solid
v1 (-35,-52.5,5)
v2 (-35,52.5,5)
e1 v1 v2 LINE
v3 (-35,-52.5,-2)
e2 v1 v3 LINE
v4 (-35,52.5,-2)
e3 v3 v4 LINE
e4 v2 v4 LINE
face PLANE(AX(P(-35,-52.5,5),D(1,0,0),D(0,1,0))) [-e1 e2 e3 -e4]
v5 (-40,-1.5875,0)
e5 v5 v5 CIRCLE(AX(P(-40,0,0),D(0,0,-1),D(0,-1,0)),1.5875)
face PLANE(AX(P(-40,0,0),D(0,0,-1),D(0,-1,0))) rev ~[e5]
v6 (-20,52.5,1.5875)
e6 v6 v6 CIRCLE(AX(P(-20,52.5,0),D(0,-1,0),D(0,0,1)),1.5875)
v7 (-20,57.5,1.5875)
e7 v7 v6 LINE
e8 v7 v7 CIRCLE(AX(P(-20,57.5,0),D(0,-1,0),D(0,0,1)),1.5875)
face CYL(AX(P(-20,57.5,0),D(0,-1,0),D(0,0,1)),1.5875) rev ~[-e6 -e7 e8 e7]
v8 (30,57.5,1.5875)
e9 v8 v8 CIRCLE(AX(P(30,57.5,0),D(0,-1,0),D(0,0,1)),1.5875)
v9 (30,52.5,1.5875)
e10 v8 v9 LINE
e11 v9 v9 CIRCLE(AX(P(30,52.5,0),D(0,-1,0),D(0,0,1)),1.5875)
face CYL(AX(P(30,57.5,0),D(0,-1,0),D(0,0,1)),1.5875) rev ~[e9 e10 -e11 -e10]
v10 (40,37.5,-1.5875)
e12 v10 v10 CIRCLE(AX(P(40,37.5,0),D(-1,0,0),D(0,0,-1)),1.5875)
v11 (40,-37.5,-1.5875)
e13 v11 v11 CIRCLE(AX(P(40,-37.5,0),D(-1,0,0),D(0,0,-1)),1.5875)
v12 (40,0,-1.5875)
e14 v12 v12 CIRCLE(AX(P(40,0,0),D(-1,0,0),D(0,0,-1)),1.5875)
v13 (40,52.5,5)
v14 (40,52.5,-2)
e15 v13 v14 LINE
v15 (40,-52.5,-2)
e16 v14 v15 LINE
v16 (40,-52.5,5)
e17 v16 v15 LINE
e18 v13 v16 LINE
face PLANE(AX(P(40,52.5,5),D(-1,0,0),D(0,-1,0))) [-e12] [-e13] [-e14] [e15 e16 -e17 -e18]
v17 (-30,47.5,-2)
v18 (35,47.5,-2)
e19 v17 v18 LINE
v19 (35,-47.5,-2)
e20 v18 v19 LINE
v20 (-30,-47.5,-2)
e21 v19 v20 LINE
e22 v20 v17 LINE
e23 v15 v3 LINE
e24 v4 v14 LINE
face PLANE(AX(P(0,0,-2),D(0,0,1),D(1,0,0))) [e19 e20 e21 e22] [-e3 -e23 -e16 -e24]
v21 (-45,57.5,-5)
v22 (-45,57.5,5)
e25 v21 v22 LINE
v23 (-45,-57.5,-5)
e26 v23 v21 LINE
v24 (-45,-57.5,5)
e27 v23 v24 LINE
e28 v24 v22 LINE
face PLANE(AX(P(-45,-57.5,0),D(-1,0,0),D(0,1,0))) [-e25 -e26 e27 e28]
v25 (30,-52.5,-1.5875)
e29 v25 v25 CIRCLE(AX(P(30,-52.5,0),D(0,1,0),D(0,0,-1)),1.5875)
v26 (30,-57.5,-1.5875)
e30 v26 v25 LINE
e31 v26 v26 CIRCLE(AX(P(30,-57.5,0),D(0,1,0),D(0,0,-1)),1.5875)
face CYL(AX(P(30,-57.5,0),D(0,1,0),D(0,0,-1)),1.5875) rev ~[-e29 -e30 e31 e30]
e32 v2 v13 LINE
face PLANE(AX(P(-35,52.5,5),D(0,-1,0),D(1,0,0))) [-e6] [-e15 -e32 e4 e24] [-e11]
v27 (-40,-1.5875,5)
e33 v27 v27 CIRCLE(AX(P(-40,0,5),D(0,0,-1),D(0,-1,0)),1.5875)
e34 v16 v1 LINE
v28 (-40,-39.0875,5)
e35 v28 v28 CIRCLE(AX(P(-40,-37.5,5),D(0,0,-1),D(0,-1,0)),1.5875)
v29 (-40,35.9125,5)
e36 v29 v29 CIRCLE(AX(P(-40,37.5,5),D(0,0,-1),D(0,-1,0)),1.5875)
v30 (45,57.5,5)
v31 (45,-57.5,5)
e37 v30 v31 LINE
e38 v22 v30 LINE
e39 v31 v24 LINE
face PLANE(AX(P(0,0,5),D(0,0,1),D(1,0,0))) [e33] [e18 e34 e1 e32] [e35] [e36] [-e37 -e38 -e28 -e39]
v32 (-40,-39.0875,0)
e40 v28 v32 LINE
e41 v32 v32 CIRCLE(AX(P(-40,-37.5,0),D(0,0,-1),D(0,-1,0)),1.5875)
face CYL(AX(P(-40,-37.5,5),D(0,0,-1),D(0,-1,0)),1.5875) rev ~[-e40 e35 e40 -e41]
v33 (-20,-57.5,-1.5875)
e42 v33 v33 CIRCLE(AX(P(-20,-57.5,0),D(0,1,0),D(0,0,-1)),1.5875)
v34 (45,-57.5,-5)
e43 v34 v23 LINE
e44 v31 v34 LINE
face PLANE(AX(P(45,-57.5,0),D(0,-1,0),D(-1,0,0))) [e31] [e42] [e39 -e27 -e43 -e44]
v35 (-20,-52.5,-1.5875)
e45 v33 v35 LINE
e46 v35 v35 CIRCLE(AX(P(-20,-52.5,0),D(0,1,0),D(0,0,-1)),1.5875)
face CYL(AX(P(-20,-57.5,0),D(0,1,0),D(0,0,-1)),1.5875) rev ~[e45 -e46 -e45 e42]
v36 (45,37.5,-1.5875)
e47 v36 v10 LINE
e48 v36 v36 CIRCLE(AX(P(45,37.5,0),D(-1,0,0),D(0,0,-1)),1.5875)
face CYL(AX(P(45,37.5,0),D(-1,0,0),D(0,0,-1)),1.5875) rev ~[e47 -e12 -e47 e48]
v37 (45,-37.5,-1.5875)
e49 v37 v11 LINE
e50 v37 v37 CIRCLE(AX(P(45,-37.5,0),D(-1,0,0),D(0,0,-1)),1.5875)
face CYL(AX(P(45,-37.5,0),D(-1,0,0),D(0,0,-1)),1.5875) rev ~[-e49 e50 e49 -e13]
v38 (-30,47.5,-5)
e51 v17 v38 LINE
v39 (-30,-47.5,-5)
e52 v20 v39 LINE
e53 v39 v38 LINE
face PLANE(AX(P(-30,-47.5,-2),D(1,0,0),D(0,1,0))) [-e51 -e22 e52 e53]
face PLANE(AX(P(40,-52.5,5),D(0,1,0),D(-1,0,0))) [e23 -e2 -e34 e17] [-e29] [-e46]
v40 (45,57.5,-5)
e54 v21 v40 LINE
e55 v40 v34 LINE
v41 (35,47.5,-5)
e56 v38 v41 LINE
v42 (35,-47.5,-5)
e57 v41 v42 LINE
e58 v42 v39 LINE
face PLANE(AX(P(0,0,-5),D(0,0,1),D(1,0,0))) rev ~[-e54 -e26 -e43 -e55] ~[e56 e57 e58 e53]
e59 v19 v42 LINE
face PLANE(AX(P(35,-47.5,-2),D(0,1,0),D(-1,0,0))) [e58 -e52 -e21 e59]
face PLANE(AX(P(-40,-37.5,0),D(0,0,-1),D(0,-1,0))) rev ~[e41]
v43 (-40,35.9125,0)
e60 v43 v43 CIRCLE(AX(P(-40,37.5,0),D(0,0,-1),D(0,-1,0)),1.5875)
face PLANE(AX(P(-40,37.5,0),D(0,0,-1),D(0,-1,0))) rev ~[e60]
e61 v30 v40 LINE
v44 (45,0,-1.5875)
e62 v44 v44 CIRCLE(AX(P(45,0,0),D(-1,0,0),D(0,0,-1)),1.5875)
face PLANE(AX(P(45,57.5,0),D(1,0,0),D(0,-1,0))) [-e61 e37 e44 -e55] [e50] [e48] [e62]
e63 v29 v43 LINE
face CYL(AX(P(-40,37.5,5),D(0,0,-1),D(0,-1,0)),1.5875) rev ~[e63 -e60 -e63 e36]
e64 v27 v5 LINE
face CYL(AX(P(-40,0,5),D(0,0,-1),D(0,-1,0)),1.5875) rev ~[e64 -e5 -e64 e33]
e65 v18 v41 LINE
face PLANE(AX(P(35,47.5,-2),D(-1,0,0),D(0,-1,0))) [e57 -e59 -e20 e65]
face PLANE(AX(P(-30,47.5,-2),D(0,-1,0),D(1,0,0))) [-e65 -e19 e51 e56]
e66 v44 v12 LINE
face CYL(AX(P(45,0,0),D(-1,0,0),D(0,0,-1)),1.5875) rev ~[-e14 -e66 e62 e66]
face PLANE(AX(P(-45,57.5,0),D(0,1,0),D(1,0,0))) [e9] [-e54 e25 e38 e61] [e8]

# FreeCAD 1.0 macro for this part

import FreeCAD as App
import Part
import Sketcher

V = App.Vector
Q = App.Units.Quantity


def add_polygon(sketch, points):
    """Adds a closed chain of lines whose ends are joined by coincident constraints."""
    first, n = sketch.GeometryCount, len(points)
    for a, b in zip(points, points[1:] + points[:1]):
        sketch.addGeometry(Part.LineSegment(App.Vector(*a, 0), App.Vector(*b, 0)), False)
    for i in range(n):
        sketch.addConstraint(Sketcher.Constraint("Coincident", first + i, 2, first + (i + 1) % n, 1))

doc = App.newDocument("Part")
body = doc.addObject("PartDesign::Body", "Body")

# Sketch on XY plane
sketch1 = body.newObject("Sketcher::SketchObject", "Sketch")
sketch1.AttachmentSupport = (doc.getObject("XY_Plane"), [""])
sketch1.MapMode = "FlatFace"
add_polygon(sketch1, [(45, 58), (-45, 58), (-45, -58), (45, -58)])  # lines 0-3
sketch1.addConstraint(Sketcher.Constraint("Horizontal", 0))
sketch1.addConstraint(Sketcher.Constraint("Vertical", 1))
sketch1.addConstraint(Sketcher.Constraint("Horizontal", 2))
sketch1.addConstraint(Sketcher.Constraint("Vertical", 3))
sketch1.addConstraint(Sketcher.Constraint("Symmetric", 0, 2, 2, 2, -1, 1))
sketch1.addConstraint(Sketcher.Constraint("DistanceX", 0, 2, 0, 1, Q("90 mm")))
sketch1.addConstraint(Sketcher.Constraint("DistanceY", 1, 2, 1, 1, Q("115 mm")))
pad1 = body.newObject("PartDesign::Pad", "Pad")
pad1.Profile = sketch1
pad1.Length = 10
pad1.Midplane = True

# Sketch on YZ plane
sketch2 = body.newObject("Sketcher::SketchObject", "Sketch001")
sketch2.AttachmentSupport = (doc.getObject("YZ_Plane"), [""])
sketch2.MapMode = "FlatFace"
sketch2.AttachmentOffset = App.Placement(V(0, 0, 45), App.Rotation())
sketch2.addGeometry(Part.Circle(V(-37.5, 0, 0), V(0, 0, 1), 1.6), False)
sketch2.addGeometry(Part.Circle(V(0, 0, 0), V(0, 0, 1), 1.6), False)
sketch2.addGeometry(Part.Circle(V(37.5, 0, 0), V(0, 0, 1), 1.6), False)
sketch2.addConstraint(Sketcher.Constraint("Coincident", 1, 3, -1, 1))
sketch2.addConstraint(Sketcher.Constraint("Equal", 0, 1))
sketch2.addConstraint(Sketcher.Constraint("Equal", 1, 2))
sketch2.addConstraint(Sketcher.Constraint("Symmetric", 0, 3, 2, 3, -1, 1))
sketch2.addConstraint(Sketcher.Constraint("PointOnObject", 0, 3, -1))
sketch2.addConstraint(Sketcher.Constraint("Diameter", 0, Q("3.175 mm")))
sketch2.addConstraint(Sketcher.Constraint("DistanceX", 0, 3, 2, 3, Q("75 mm")))
doc.recompute()
hole = body.newObject("PartDesign::Hole", "Hole")
hole.Profile = sketch2
hole.ThreadType = "None"
hole.Diameter = 3.175
hole.DepthType = "Dimension"
hole.Depth = 5
hole.DrillPoint = "Flat"

# Sketch on XZ plane
sketch3 = body.newObject("Sketcher::SketchObject", "Sketch002")
sketch3.AttachmentSupport = (doc.getObject("XZ_Plane"), [""])
sketch3.MapMode = "FlatFace"
sketch3.AttachmentOffset = App.Placement(V(0, 0, 57.5), App.Rotation())
sketch3.addGeometry(Part.Circle(V(-20, 0, 0), V(0, 0, 1), 1.6), False)
sketch3.addGeometry(Part.Circle(V(30, 0, 0), V(0, 0, 1), 1.6), False)
sketch3.addConstraint(Sketcher.Constraint("Equal", 0, 1))
sketch3.addConstraint(Sketcher.Constraint("PointOnObject", 0, 3, -1))
sketch3.addConstraint(Sketcher.Constraint("PointOnObject", 1, 3, -1))
sketch3.addConstraint(Sketcher.Constraint("Diameter", 0, Q("3.175 mm")))
sketch3.addConstraint(Sketcher.Constraint("DistanceX", 0, 3, -1, 1, Q("20 mm")))
sketch3.addConstraint(Sketcher.Constraint("DistanceX", -1, 1, 1, 3, Q("30 mm")))
doc.recompute()
hole2 = body.newObject("PartDesign::Hole", "Hole001")
hole2.Profile = sketch3
hole2.ThreadType = "None"
hole2.Diameter = 3.175
hole2.DepthType = "Dimension"
hole2.Depth = 5
hole2.DrillPoint = "Flat"

# Sketch on XZ plane
sketch4 = body.newObject("Sketcher::SketchObject", "Sketch003")
sketch4.AttachmentSupport = (doc.getObject("XZ_Plane"), [""])
sketch4.MapMode = "FlatFace"
sketch4.AttachmentOffset = App.Placement(V(0, 0, -57.5), App.Rotation())
sketch4.addGeometry(Part.Circle(V(-20, 0, 0), V(0, 0, 1), 1.6), False)
sketch4.addGeometry(Part.Circle(V(30, 0, 0), V(0, 0, 1), 1.6), False)
sketch4.addConstraint(Sketcher.Constraint("Equal", 0, 1))
sketch4.addConstraint(Sketcher.Constraint("PointOnObject", 0, 3, -1))
sketch4.addConstraint(Sketcher.Constraint("PointOnObject", 1, 3, -1))
sketch4.addConstraint(Sketcher.Constraint("Diameter", 0, Q("3.175 mm")))
sketch4.addConstraint(Sketcher.Constraint("DistanceX", 0, 3, -1, 1, Q("20 mm")))
sketch4.addConstraint(Sketcher.Constraint("DistanceX", -1, 1, 1, 3, Q("30 mm")))
doc.recompute()
hole3 = body.newObject("PartDesign::Hole", "Hole002")
hole3.Profile = sketch4
hole3.ThreadType = "None"
hole3.Diameter = 3.175
hole3.DepthType = "Dimension"
hole3.Depth = 5
hole3.DrillPoint = "Flat"
hole3.Reversed = True

# Sketch on XY plane
sketch5 = body.newObject("Sketcher::SketchObject", "Sketch004")
sketch5.AttachmentSupport = (doc.getObject("XY_Plane"), [""])
sketch5.MapMode = "FlatFace"
sketch5.AttachmentOffset = App.Placement(V(0, 0, 5), App.Rotation())
sketch5.addGeometry(Part.Circle(V(-40, -37.5, 0), V(0, 0, 1), 1.6), False)
sketch5.addGeometry(Part.Circle(V(-40, 0, 0), V(0, 0, 1), 1.6), False)
sketch5.addGeometry(Part.Circle(V(-40, 37.5, 0), V(0, 0, 1), 1.6), False)
sketch5.addConstraint(Sketcher.Constraint("Equal", 0, 1))
sketch5.addConstraint(Sketcher.Constraint("Equal", 1, 2))
sketch5.addConstraint(Sketcher.Constraint("Symmetric", 0, 3, 2, 3, -1))
sketch5.addConstraint(Sketcher.Constraint("PointOnObject", 1, 3, -1))
sketch5.addConstraint(Sketcher.Constraint("Vertical", 0, 3, 1, 3))
sketch5.addConstraint(Sketcher.Constraint("Diameter", 0, Q("3.175 mm")))
sketch5.addConstraint(Sketcher.Constraint("DistanceX", 0, 3, -1, 1, Q("40 mm")))
sketch5.addConstraint(Sketcher.Constraint("DistanceY", 0, 3, 2, 3, Q("75 mm")))
doc.recompute()
hole4 = body.newObject("PartDesign::Hole", "Hole003")
hole4.Profile = sketch5
hole4.ThreadType = "None"
hole4.Diameter = 3.175
hole4.DepthType = "Dimension"
hole4.Depth = 5
hole4.DrillPoint = "Flat"

# Sketch on XY plane
sketch6 = body.newObject("Sketcher::SketchObject", "Sketch005")
sketch6.AttachmentSupport = (doc.getObject("XY_Plane"), [""])
sketch6.MapMode = "FlatFace"
sketch6.AttachmentOffset = App.Placement(V(0, 0, 5), App.Rotation())
add_polygon(sketch6, [(-35, -52), (40, -52), (40, 52), (-35, 52)])  # lines 0-3
sketch6.addConstraint(Sketcher.Constraint("Horizontal", 0))
sketch6.addConstraint(Sketcher.Constraint("Vertical", 1))
sketch6.addConstraint(Sketcher.Constraint("Horizontal", 2))
sketch6.addConstraint(Sketcher.Constraint("Vertical", 3))
sketch6.addConstraint(Sketcher.Constraint("DistanceX", 0, 1, 0, 2, Q("75 mm")))
sketch6.addConstraint(Sketcher.Constraint("DistanceY", 1, 1, 1, 2, Q("105 mm")))
sketch6.addConstraint(Sketcher.Constraint("DistanceX", -1, 1, 0, 2, Q("40 mm")))
sketch6.addConstraint(Sketcher.Constraint("DistanceY", 0, 2, -1, 1, Q("52.5 mm")))
pocket1 = body.newObject("PartDesign::Pocket", "Pocket")
pocket1.Profile = sketch6
pocket1.Length = 7

# Sketch on XY plane
sketch7 = body.newObject("Sketcher::SketchObject", "Sketch006")
sketch7.AttachmentSupport = (doc.getObject("XY_Plane"), [""])
sketch7.MapMode = "FlatFace"
sketch7.AttachmentOffset = App.Placement(V(0, 0, -2), App.Rotation())
add_polygon(sketch7, [(-30, -48), (35, -48), (35, 48), (-30, 48)])  # lines 0-3
sketch7.addConstraint(Sketcher.Constraint("Horizontal", 0))
sketch7.addConstraint(Sketcher.Constraint("Vertical", 1))
sketch7.addConstraint(Sketcher.Constraint("Horizontal", 2))
sketch7.addConstraint(Sketcher.Constraint("Vertical", 3))
sketch7.addConstraint(Sketcher.Constraint("DistanceX", 0, 1, 0, 2, Q("65 mm")))
sketch7.addConstraint(Sketcher.Constraint("DistanceY", 1, 1, 1, 2, Q("95 mm")))
sketch7.addConstraint(Sketcher.Constraint("DistanceX", -1, 1, 0, 2, Q("35 mm")))
sketch7.addConstraint(Sketcher.Constraint("DistanceY", 0, 2, -1, 1, Q("47.5 mm")))
pocket2 = body.newObject("PartDesign::Pocket", "Pocket001")
pocket2.Profile = sketch7
pocket2.Type = "ThroughAll"

doc.recompute()
